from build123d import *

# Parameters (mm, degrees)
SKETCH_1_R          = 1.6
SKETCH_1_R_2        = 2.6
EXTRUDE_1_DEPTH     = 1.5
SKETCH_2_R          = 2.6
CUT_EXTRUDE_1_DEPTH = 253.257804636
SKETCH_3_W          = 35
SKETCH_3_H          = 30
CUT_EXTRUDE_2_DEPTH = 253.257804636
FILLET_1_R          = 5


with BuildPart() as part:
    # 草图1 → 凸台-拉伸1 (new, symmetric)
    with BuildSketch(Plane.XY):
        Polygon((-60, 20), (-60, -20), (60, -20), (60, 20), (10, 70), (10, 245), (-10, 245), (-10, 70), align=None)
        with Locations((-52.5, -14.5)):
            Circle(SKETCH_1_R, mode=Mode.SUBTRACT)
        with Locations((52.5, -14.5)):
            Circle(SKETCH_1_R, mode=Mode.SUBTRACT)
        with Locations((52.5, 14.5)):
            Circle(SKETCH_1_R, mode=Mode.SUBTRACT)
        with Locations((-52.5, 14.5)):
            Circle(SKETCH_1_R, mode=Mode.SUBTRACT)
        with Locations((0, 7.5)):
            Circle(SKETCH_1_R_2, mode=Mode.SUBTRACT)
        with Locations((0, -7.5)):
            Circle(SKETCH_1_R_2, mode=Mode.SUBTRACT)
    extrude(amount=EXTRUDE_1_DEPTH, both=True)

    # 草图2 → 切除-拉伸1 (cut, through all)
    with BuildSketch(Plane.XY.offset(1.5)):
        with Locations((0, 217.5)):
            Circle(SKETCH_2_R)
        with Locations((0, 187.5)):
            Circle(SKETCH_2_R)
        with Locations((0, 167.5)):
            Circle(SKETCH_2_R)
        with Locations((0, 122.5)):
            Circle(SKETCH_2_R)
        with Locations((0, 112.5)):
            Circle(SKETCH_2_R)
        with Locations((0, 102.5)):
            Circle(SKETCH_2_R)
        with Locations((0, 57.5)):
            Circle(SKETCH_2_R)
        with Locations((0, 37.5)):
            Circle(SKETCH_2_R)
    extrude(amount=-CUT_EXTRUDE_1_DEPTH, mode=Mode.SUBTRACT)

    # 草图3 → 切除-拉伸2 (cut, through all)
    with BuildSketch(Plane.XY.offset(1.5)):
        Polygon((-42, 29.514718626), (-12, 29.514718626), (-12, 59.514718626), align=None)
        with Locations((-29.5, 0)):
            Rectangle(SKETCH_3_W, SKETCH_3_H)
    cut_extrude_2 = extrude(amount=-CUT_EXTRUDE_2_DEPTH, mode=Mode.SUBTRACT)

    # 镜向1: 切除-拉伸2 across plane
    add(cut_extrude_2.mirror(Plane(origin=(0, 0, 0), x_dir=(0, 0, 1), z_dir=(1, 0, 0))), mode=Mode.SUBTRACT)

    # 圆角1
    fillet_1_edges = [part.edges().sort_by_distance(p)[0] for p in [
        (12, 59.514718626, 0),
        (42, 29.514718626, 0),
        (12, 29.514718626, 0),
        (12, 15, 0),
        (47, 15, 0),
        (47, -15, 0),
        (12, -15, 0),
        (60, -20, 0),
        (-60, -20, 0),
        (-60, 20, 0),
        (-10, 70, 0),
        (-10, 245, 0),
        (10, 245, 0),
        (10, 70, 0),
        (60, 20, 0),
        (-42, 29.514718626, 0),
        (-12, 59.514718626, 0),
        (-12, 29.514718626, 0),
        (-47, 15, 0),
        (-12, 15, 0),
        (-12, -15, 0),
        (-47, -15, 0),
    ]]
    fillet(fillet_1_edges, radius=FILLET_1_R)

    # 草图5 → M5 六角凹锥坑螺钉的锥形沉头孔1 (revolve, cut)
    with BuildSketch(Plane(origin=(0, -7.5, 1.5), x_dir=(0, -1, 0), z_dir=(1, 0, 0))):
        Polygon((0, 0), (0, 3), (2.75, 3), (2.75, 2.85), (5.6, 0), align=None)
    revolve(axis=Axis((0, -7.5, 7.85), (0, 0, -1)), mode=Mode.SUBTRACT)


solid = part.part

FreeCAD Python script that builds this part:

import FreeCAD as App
import Part
import Sketcher

V = App.Vector
Q = App.Units.Quantity


def edges_at(feature, points):
    """Names of the edges that pass closest to the given points."""
    edges = feature.Shape.Edges
    near = lambda p: min(range(len(edges)), key=lambda i: edges[i].distToShape(Part.Vertex(*p))[0])
    return sorted({f"Edge{near(p) + 1}" for p in points})


def add_polygon(sketch, points):
    """Adds a closed chain of lines whose ends are joined by coincident constraints."""
    first, n = sketch.GeometryCount, len(points)
    for a, b in zip(points, points[1:] + points[:1]):
        sketch.addGeometry(Part.LineSegment(App.Vector(*a, 0), App.Vector(*b, 0)), False)
    for i in range(n):
        sketch.addConstraint(Sketcher.Constraint("Coincident", first + i, 2, first + (i + 1) % n, 1))

doc = App.newDocument("Part")
body = doc.addObject("PartDesign::Body", "Body")

# Sketch on XY plane
sketch1 = body.newObject("Sketcher::SketchObject", "Sketch")
sketch1.AttachmentSupport = (doc.getObject("XY_Plane"), [""])
sketch1.MapMode = "FlatFace"
add_polygon(sketch1, [(-60, 20), (-60, -20), (60, -20), (60, 20), (10, 70), (10, 245), (-10, 245), (-10, 70)])  # lines 0-7
sketch1.addGeometry(Part.Circle(V(-52.5, -14.5, 0), V(0, 0, 1), 1.6), False)  # 8
sketch1.addGeometry(Part.Circle(V(0, -7.5, 0), V(0, 0, 1), 2.6), False)  # 9
sketch1.addGeometry(Part.Circle(V(52.5, -14.5, 0), V(0, 0, 1), 1.6), False)  # 10
sketch1.addGeometry(Part.Circle(V(0, 7.5, 0), V(0, 0, 1), 2.6), False)  # 11
sketch1.addGeometry(Part.Circle(V(-52.5, 14.5, 0), V(0, 0, 1), 1.6), False)  # 12
sketch1.addGeometry(Part.Circle(V(52.5, 14.5, 0), V(0, 0, 1), 1.6), False)  # 13
sketch1.addConstraint([
    Sketcher.Constraint("Vertical", 0),
    Sketcher.Constraint("Horizontal", 1),
    Sketcher.Constraint("Vertical", 2),
    Sketcher.Constraint("Vertical", 4),
    Sketcher.Constraint("Horizontal", 5),
    Sketcher.Constraint("Vertical", 6),
    Sketcher.Constraint("Equal", 8, 10),
    Sketcher.Constraint("Equal", 9, 11),
    Sketcher.Constraint("Equal", 10, 12),
    Sketcher.Constraint("Equal", 12, 13),
    Sketcher.Constraint("Symmetric", 9, 3, 11, 3, -1, 1),
    Sketcher.Constraint("Symmetric", 10, 3, 12, 3, -1, 1),
    Sketcher.Constraint("Symmetric", 8, 3, 13, 3, -1, 1),
    Sketcher.Constraint("Symmetric", 0, 2, 2, 2, -1, 1),
    Sketcher.Constraint("Symmetric", 8, 3, 10, 3, -2),
    Sketcher.Constraint("Symmetric", 3, 2, 6, 2, -2),
    Sketcher.Constraint("PointOnObject", 9, 3, -2),
    Sketcher.Constraint("Perpendicular", 3, 7),
    Sketcher.Constraint("Horizontal", 2, 2, 7, 2),
    Sketcher.Constraint("Diameter", 8, Q("3.2 mm")),
    Sketcher.Constraint("Diameter", 9, Q("5.2 mm")),
    Sketcher.Constraint("DistanceX", 1, 1, 1, 2, Q("120 mm")),
    Sketcher.Constraint("DistanceX", 5, 2, 5, 1, Q("20 mm")),
    Sketcher.Constraint("DistanceY", 0, 2, 0, 1, Q("40 mm")),
    Sketcher.Constraint("DistanceY", 4, 1, 4, 2, Q("175 mm")),
    Sketcher.Constraint("DistanceY", 8, 3, 9, 3, Q("7 mm")),
    Sketcher.Constraint("DistanceX", 8, 3, 10, 3, Q("105 mm")),
    Sketcher.Constraint("DistanceY", 9, 3, 11, 3, Q("15 mm")),
])
pad1 = body.newObject("PartDesign::Pad", "Pad")
pad1.Profile = sketch1
pad1.Length = 3
pad1.Midplane = True

# Sketch on XY plane
sketch2 = body.newObject("Sketcher::SketchObject", "Sketch001")
sketch2.AttachmentSupport = (doc.getObject("XY_Plane"), [""])
sketch2.MapMode = "FlatFace"
sketch2.AttachmentOffset = App.Placement(V(0, 0, 1.5), App.Rotation())
sketch2.addGeometry([
    Part.Circle(V(0, 217.5, 0), V(0, 0, 1), 2.6),  # 0
    Part.Circle(V(0, 187.5, 0), V(0, 0, 1), 2.6),  # 1
    Part.Circle(V(0, 167.5, 0), V(0, 0, 1), 2.6),  # 2
    Part.Circle(V(0, 122.5, 0), V(0, 0, 1), 2.6),  # 3
    Part.Circle(V(0, 112.5, 0), V(0, 0, 1), 2.6),  # 4
    Part.Circle(V(0, 102.5, 0), V(0, 0, 1), 2.6),  # 5
    Part.Circle(V(0, 57.5, 0), V(0, 0, 1), 2.6),  # 6
    Part.Circle(V(0, 37.5, 0), V(0, 0, 1), 2.6),  # 7
], False)
sketch2.addConstraint([
    Sketcher.Constraint("Equal", 0, 1),
    Sketcher.Constraint("Equal", 1, 2),
    Sketcher.Constraint("Equal", 2, 3),
    Sketcher.Constraint("Equal", 3, 4),
    Sketcher.Constraint("Equal", 4, 5),
    Sketcher.Constraint("Equal", 5, 6),
    Sketcher.Constraint("Equal", 6, 7),
    Sketcher.Constraint("PointOnObject", 0, 3, -2),
    Sketcher.Constraint("PointOnObject", 1, 3, -2),
    Sketcher.Constraint("PointOnObject", 2, 3, -2),
    Sketcher.Constraint("PointOnObject", 3, 3, -2),
    Sketcher.Constraint("PointOnObject", 4, 3, -2),
    Sketcher.Constraint("PointOnObject", 5, 3, -2),
    Sketcher.Constraint("PointOnObject", 6, 3, -2),
    Sketcher.Constraint("PointOnObject", 7, 3, -2),
    Sketcher.Constraint("Diameter", 0, Q("5.2 mm")),
    Sketcher.Constraint("DistanceY", 1, 3, 0, 3, Q("30 mm")),
    Sketcher.Constraint("DistanceY", 2, 3, 1, 3, Q("20 mm")),
    Sketcher.Constraint("DistanceY", 3, 3, 2, 3, Q("45 mm")),
    Sketcher.Constraint("DistanceY", 4, 3, 3, 3, Q("10 mm")),
    Sketcher.Constraint("DistanceY", 5, 3, 4, 3, Q("10 mm")),
    Sketcher.Constraint("DistanceY", 6, 3, 5, 3, Q("45 mm")),
    Sketcher.Constraint("DistanceY", 7, 3, 6, 3, Q("20 mm")),
    Sketcher.Constraint("DistanceY", -1, 1, 0, 3, Q("217.5 mm")),
])
pocket1 = body.newObject("PartDesign::Pocket", "Pocket")
pocket1.Profile = sketch2
pocket1.Type = "ThroughAll"

# Sketch on XY plane
sketch3 = body.newObject("Sketcher::SketchObject", "Sketch002")
sketch3.AttachmentSupport = (doc.getObject("XY_Plane"), [""])
sketch3.MapMode = "FlatFace"
sketch3.AttachmentOffset = App.Placement(V(0, 0, 1.5), App.Rotation())
add_polygon(sketch3, [(-42, 30), (-12, 30), (-12, 60)])  # lines 0-2
add_polygon(sketch3, [(-47, 15), (-47, -15), (-12, -15), (-12, 15)])  # lines 3-6
sketch3.addConstraint([
    Sketcher.Constraint("Horizontal", 0),
    Sketcher.Constraint("Vertical", 1),
    Sketcher.Constraint("Vertical", 3),
    Sketcher.Constraint("Horizontal", 4),
    Sketcher.Constraint("Vertical", 5),
    Sketcher.Constraint("Horizontal", 6),
    Sketcher.Constraint("Vertical", 1, 2, 4, 2),
    Sketcher.Constraint("Equal", 0, 1),
    Sketcher.Constraint("Equal", 1, 3),
    Sketcher.Constraint("DistanceX", 0, 1, 0, 2, Q("30 mm")),
    Sketcher.Constraint("DistanceX", 4, 1, 4, 2, Q("35 mm")),
    Sketcher.Constraint("DistanceX", 0, 2, -1, 1, Q("12 mm")),
    Sketcher.Constraint("DistanceY", 3, 2, -1, 1, Q("15 mm")),
    Sketcher.Constraint("DistanceY", -1, 1, 0, 2, Q("29.514719 mm")),
])
pocket2 = body.newObject("PartDesign::Pocket", "Pocket001")
pocket2.Profile = sketch3
pocket2.Type = "ThroughAll"
doc.recompute()

mirrored = body.newObject("PartDesign::Mirrored", "Mirrored")
mirrored.Originals = [pocket2]
mirrored.MirrorPlane = (doc.getObject("YZ_Plane"), [""])
body.Tip = mirrored
doc.recompute()

fillet = body.newObject("PartDesign::Fillet", "Fillet")
fillet.Base = (mirrored, edges_at(mirrored, [
    (12, 59.515, 0),
    (42, 29.515, 0),
    (12, 29.515, 0),
    (12, 15, 0),
    (47, 15, 0),
    (47, -15, 0),
    (12, -15, 0),
    (60, -20, 0),
    (-60, -20, 0),
    (-60, 20, 0),
    (-10, 70, 0),
    (-10, 245, 0),
    (10, 245, 0),
    (10, 70, 0),
    (60, 20, 0),
    (-42, 29.515, 0),
    (-12, 59.515, 0),
    (-12, 29.515, 0),
    (-47, 15, 0),
    (-12, 15, 0),
    (-12, -15, 0),
    (-47, -15, 0),
]))
fillet.Radius = 5

# Sketch on YZ plane
sketch4 = body.newObject("Sketcher::SketchObject", "Sketch003")
sketch4.AttachmentSupport = (doc.getObject("YZ_Plane"), [""])
sketch4.MapMode = "FlatFace"
add_polygon(sketch4, [(-7.5, -1.5), (-7.5, 1.5), (-13.1, 1.5), (-10.25, -1.35), (-10.25, -1.5)])  # lines 0-4
sketch4.addGeometry(Part.LineSegment(V(-7.5, 1.5, 0), V(-7.5, -1.5, 0)), True)  # axis
sketch4.addConstraint([
    Sketcher.Constraint("Vertical", 0),
    Sketcher.Constraint("Horizontal", 1),
    Sketcher.Constraint("Vertical", 3),
    Sketcher.Constraint("Horizontal", 4),
    Sketcher.Constraint("Vertical", 5),
    Sketcher.Constraint("Coincident", 5, 1, 0, 2),
    Sketcher.Constraint("Horizontal", 3, 2, 5, 2),
    Sketcher.Constraint("DistanceY", 0, 1, 0, 2, Q("3 mm")),
    Sketcher.Constraint("Angle", 2, Q("-45 deg")),
    Sketcher.Constraint("DistanceX", 1, 2, 1, 1, Q("5.6 mm")),
    Sketcher.Constraint("DistanceX", 4, 1, 4, 2, Q("2.75 mm")),
    Sketcher.Constraint("DistanceX", 0, 2, -1, 1, Q("7.5 mm")),
    Sketcher.Constraint("DistanceY", -1, 1, 0, 2, Q("1.5 mm")),
])
groove = body.newObject("PartDesign::Groove", "Groove")
groove.Profile = sketch4
groove.ReferenceAxis = (sketch4, ["Axis0"])
groove.Angle = 360

doc.recompute()
